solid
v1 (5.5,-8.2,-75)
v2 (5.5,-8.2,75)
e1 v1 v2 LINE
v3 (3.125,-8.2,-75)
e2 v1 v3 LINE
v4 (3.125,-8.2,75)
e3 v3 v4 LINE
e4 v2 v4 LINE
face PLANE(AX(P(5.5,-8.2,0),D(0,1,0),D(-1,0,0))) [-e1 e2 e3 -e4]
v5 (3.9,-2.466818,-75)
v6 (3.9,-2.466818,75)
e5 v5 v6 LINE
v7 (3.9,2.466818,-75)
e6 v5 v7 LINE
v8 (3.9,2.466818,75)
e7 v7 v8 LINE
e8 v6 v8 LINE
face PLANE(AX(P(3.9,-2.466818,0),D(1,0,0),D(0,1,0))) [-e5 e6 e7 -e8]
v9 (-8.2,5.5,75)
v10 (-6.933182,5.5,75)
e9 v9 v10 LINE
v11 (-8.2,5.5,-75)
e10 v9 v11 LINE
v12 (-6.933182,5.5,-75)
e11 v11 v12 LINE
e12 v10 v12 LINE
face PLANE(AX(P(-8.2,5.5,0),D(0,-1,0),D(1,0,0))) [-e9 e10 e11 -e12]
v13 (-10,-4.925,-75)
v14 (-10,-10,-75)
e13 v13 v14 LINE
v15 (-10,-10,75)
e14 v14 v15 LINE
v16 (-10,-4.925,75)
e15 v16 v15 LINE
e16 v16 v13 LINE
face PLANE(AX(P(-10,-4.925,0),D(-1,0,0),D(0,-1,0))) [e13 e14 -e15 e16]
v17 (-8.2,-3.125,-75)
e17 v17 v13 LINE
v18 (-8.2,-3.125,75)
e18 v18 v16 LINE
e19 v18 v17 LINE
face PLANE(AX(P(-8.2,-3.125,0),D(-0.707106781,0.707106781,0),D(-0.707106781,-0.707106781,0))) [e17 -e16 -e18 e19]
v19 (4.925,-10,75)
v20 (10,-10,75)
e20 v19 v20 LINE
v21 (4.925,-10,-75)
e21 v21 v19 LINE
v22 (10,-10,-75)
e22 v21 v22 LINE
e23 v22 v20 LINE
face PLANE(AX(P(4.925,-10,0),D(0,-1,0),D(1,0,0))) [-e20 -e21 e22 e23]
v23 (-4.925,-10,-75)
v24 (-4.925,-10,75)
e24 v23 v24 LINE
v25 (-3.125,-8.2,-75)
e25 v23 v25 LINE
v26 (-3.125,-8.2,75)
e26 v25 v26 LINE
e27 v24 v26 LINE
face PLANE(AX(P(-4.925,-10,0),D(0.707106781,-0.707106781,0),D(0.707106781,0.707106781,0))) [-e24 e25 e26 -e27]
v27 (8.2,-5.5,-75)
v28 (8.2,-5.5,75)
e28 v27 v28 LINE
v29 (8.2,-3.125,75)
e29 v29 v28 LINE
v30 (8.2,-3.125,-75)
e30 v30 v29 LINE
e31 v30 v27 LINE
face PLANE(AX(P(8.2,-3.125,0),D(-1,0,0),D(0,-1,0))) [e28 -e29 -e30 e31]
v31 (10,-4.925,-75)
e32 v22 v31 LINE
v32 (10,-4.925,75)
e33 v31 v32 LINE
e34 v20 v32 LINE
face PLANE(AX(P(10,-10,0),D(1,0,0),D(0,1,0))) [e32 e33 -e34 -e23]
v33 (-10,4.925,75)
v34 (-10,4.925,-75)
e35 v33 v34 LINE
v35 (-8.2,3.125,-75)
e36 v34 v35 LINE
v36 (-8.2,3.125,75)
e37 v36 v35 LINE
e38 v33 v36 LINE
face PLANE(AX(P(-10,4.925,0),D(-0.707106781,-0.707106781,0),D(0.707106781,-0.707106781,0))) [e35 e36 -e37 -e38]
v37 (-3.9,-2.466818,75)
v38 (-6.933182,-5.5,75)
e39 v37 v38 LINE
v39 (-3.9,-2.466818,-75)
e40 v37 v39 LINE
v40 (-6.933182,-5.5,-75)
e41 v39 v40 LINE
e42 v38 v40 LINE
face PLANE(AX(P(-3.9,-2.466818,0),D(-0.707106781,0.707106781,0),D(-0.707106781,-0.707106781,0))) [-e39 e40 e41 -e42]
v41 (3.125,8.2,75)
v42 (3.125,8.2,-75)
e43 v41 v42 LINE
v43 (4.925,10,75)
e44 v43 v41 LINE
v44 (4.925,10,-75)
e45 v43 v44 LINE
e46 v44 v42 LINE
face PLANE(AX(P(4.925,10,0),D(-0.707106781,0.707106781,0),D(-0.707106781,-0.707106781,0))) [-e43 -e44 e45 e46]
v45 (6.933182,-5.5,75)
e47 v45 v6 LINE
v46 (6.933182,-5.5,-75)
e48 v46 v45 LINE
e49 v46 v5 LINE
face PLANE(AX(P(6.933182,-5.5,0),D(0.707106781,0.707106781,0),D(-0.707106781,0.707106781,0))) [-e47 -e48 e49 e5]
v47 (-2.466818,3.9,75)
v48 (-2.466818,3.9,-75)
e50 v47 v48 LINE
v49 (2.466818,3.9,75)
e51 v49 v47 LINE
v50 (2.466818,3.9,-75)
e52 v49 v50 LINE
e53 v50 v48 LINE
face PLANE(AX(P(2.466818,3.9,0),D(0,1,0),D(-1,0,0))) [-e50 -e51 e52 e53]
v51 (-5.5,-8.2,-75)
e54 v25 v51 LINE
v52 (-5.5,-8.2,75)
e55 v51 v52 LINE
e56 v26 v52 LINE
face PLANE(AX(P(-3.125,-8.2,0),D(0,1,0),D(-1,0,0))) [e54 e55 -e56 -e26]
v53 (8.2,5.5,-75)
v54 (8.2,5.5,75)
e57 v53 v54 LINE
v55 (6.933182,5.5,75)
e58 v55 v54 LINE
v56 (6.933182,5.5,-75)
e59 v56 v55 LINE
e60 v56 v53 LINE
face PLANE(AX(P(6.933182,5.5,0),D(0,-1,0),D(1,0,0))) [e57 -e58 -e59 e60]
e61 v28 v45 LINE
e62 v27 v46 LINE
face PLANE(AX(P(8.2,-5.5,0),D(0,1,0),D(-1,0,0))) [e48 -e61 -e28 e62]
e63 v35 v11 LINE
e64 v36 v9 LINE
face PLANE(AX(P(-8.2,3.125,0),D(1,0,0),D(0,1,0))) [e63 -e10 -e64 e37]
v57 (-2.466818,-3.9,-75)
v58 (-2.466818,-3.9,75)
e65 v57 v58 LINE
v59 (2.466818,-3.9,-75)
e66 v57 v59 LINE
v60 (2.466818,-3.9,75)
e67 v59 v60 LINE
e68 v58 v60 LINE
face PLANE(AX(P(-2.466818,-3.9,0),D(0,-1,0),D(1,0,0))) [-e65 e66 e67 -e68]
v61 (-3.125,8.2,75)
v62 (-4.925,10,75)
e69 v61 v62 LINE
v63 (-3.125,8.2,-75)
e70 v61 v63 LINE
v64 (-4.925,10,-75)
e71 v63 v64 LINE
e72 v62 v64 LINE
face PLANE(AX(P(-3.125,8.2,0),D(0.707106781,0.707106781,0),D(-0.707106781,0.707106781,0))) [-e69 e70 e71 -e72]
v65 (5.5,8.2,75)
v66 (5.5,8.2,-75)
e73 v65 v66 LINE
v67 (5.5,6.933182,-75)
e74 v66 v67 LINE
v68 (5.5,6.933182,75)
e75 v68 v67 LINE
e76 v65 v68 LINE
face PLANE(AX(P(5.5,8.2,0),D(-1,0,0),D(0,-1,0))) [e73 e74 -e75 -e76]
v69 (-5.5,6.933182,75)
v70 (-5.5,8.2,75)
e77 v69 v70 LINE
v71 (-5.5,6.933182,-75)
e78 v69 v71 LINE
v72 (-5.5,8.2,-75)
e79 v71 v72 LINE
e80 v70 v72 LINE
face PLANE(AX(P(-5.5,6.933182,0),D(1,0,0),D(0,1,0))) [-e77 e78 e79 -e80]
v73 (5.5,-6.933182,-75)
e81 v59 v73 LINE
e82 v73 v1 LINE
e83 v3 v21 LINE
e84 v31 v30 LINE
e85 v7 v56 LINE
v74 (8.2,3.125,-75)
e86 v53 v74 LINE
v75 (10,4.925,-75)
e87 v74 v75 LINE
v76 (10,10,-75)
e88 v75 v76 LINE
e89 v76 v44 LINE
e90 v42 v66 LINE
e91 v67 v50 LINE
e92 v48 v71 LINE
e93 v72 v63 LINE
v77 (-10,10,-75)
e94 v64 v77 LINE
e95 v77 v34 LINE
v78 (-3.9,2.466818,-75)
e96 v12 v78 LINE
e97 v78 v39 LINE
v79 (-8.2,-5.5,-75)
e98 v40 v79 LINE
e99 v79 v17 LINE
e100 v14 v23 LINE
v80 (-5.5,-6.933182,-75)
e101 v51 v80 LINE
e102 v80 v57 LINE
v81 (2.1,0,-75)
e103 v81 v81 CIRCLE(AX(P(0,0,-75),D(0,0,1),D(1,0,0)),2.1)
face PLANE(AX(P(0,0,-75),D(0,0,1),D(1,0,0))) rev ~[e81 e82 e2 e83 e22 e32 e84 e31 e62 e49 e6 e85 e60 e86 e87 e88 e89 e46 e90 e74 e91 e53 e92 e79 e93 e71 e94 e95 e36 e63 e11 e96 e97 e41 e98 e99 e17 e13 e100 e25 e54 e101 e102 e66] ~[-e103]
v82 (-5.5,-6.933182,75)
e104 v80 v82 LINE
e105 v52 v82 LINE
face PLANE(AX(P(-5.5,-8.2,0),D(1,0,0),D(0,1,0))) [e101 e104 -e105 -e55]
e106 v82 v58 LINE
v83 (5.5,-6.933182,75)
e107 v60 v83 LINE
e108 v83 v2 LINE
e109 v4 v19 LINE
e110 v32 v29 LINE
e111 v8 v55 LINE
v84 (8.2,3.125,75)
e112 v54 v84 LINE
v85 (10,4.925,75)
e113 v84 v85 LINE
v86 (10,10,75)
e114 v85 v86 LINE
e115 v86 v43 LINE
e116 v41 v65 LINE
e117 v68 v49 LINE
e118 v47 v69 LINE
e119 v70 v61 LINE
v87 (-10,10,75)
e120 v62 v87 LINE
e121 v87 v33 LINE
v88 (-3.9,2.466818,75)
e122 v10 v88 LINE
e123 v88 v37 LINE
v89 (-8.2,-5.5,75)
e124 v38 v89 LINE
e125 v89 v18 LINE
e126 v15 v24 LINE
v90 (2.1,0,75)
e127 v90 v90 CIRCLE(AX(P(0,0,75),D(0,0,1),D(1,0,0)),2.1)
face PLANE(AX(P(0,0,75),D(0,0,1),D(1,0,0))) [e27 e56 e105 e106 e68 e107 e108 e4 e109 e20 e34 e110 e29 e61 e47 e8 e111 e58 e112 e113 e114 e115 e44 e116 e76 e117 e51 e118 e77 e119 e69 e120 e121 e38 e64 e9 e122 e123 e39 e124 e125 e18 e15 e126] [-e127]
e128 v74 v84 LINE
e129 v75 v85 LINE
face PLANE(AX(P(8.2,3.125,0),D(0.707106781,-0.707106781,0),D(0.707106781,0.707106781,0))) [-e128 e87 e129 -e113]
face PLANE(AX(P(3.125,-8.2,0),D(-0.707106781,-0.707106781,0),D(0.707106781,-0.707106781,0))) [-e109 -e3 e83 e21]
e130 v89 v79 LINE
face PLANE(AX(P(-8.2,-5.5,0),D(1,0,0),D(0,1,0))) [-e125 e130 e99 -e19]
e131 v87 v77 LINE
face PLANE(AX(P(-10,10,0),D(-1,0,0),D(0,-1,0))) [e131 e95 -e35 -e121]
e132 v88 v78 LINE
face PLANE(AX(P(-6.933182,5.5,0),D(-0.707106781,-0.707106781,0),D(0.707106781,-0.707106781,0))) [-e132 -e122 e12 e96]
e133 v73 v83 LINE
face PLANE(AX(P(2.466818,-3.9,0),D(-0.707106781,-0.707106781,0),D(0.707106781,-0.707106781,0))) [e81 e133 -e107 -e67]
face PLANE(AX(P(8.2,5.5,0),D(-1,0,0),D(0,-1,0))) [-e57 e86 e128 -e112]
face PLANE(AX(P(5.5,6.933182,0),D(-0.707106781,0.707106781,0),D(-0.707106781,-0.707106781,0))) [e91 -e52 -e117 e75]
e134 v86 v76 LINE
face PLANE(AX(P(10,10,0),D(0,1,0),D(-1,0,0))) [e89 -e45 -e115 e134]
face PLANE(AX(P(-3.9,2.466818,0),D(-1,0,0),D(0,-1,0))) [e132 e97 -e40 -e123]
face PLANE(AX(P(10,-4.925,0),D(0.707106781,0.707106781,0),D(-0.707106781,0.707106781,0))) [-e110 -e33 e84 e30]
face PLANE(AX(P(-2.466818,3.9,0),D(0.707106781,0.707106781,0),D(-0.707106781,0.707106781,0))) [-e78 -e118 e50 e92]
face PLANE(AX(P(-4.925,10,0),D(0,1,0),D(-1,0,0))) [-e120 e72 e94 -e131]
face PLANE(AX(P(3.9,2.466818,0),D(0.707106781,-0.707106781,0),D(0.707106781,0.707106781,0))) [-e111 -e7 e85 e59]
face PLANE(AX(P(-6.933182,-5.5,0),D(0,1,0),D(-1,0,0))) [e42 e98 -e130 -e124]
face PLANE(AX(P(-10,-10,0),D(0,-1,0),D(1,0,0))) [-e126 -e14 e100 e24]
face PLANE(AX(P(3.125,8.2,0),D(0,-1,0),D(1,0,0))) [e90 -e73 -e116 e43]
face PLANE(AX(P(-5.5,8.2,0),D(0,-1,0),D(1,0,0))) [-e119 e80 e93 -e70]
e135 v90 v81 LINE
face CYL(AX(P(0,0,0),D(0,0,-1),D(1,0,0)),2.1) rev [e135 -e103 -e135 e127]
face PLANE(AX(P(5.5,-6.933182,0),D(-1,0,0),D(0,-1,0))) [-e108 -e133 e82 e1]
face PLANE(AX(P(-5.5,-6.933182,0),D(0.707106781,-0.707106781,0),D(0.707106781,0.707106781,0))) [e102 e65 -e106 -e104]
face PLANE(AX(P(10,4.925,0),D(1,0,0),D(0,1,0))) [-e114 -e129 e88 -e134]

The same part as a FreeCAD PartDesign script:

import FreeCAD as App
import Part
import Sketcher
Q = App.Units.Quantity

doc = App.newDocument("Part")
params = doc.addObject("Spreadsheet::Sheet", "Params")
for row, (alias, value) in enumerate([
    ("sketch1_diameter", "4.2 mm"),
    ("pad1_length", "150 mm"),
], start=1):
    params.set(f"A{row}", alias)
    params.set(f"B{row}", "=" + value)
    params.setAlias(f"B{row}", alias)

body = doc.addObject("PartDesign::Body", "Body")

# Sketch on XY plane
sketch1 = body.newObject("Sketcher::SketchObject", "Sketch")
sketch1.AttachmentSupport = (doc.getObject("XY_Plane"), [""])
sketch1.MapMode = "FlatFace"
sketch1.addGeometry(Part.LineSegment(App.Vector(-10, -4.925, 0), App.Vector(-10, -10, 0)), False)
sketch1.addGeometry(Part.LineSegment(App.Vector(-10, -10, 0), App.Vector(-4.925, -10, 0)), False)
sketch1.addGeometry(Part.LineSegment(App.Vector(-4.925, -10, 0), App.Vector(-3.125, -8.2, 0)), False)
sketch1.addGeometry(Part.LineSegment(App.Vector(-3.125, -8.2, 0), App.Vector(-5.5, -8.2, 0)), False)
sketch1.addGeometry(Part.LineSegment(App.Vector(-5.5, -8.2, 0), App.Vector(-5.5, -6.933182, 0)), False)
sketch1.addGeometry(Part.LineSegment(App.Vector(-5.5, -6.933182, 0), App.Vector(-2.466818, -3.9, 0)), False)
sketch1.addGeometry(Part.LineSegment(App.Vector(-2.466818, -3.9, 0), App.Vector(2.466818, -3.9, 0)), False)
sketch1.addGeometry(Part.LineSegment(App.Vector(2.466818, -3.9, 0), App.Vector(5.5, -6.933182, 0)), False)
sketch1.addGeometry(Part.LineSegment(App.Vector(5.5, -6.933182, 0), App.Vector(5.5, -8.2, 0)), False)
sketch1.addGeometry(Part.LineSegment(App.Vector(5.5, -8.2, 0), App.Vector(3.125, -8.2, 0)), False)
sketch1.addGeometry(Part.LineSegment(App.Vector(3.125, -8.2, 0), App.Vector(4.925, -10, 0)), False)
sketch1.addGeometry(Part.LineSegment(App.Vector(4.925, -10, 0), App.Vector(10, -10, 0)), False)
sketch1.addGeometry(Part.LineSegment(App.Vector(10, -10, 0), App.Vector(10, -4.925, 0)), False)
sketch1.addGeometry(Part.LineSegment(App.Vector(10, -4.925, 0), App.Vector(8.2, -3.125, 0)), False)
sketch1.addGeometry(Part.LineSegment(App.Vector(8.2, -3.125, 0), App.Vector(8.2, -5.5, 0)), False)
sketch1.addGeometry(Part.LineSegment(App.Vector(8.2, -5.5, 0), App.Vector(6.933182, -5.5, 0)), False)
sketch1.addGeometry(Part.LineSegment(App.Vector(6.933182, -5.5, 0), App.Vector(3.9, -2.466818, 0)), False)
sketch1.addGeometry(Part.LineSegment(App.Vector(3.9, -2.466818, 0), App.Vector(3.9, 2.466818, 0)), False)
sketch1.addGeometry(Part.LineSegment(App.Vector(3.9, 2.466818, 0), App.Vector(6.933182, 5.5, 0)), False)
sketch1.addGeometry(Part.LineSegment(App.Vector(6.933182, 5.5, 0), App.Vector(8.2, 5.5, 0)), False)
sketch1.addGeometry(Part.LineSegment(App.Vector(8.2, 5.5, 0), App.Vector(8.2, 3.125, 0)), False)
sketch1.addGeometry(Part.LineSegment(App.Vector(8.2, 3.125, 0), App.Vector(10, 4.925, 0)), False)
sketch1.addGeometry(Part.LineSegment(App.Vector(10, 4.925, 0), App.Vector(10, 10, 0)), False)
sketch1.addGeometry(Part.LineSegment(App.Vector(10, 10, 0), App.Vector(4.925, 10, 0)), False)
sketch1.addGeometry(Part.LineSegment(App.Vector(4.925, 10, 0), App.Vector(3.125, 8.2, 0)), False)
sketch1.addGeometry(Part.LineSegment(App.Vector(3.125, 8.2, 0), App.Vector(5.5, 8.2, 0)), False)
sketch1.addGeometry(Part.LineSegment(App.Vector(5.5, 8.2, 0), App.Vector(5.5, 6.933182, 0)), False)
sketch1.addGeometry(Part.LineSegment(App.Vector(5.5, 6.933182, 0), App.Vector(2.466818, 3.9, 0)), False)
sketch1.addGeometry(Part.LineSegment(App.Vector(2.466818, 3.9, 0), App.Vector(-2.466818, 3.9, 0)), False)
sketch1.addGeometry(Part.LineSegment(App.Vector(-2.466818, 3.9, 0), App.Vector(-5.5, 6.933182, 0)), False)
sketch1.addGeometry(Part.LineSegment(App.Vector(-5.5, 6.933182, 0), App.Vector(-5.5, 8.2, 0)), False)
sketch1.addGeometry(Part.LineSegment(App.Vector(-5.5, 8.2, 0), App.Vector(-3.125, 8.2, 0)), False)
sketch1.addGeometry(Part.LineSegment(App.Vector(-3.125, 8.2, 0), App.Vector(-4.925, 10, 0)), False)
sketch1.addGeometry(Part.LineSegment(App.Vector(-4.925, 10, 0), App.Vector(-10, 10, 0)), False)
sketch1.addGeometry(Part.LineSegment(App.Vector(-10, 10, 0), App.Vector(-10, 4.925, 0)), False)
sketch1.addGeometry(Part.LineSegment(App.Vector(-10, 4.925, 0), App.Vector(-8.2, 3.125, 0)), False)
sketch1.addGeometry(Part.LineSegment(App.Vector(-8.2, 3.125, 0), App.Vector(-8.2, 5.5, 0)), False)
sketch1.addGeometry(Part.LineSegment(App.Vector(-8.2, 5.5, 0), App.Vector(-6.933182, 5.5, 0)), False)
sketch1.addGeometry(Part.LineSegment(App.Vector(-6.933182, 5.5, 0), App.Vector(-3.9, 2.466818, 0)), False)
sketch1.addGeometry(Part.LineSegment(App.Vector(-3.9, 2.466818, 0), App.Vector(-3.9, -2.466818, 0)), False)
sketch1.addGeometry(Part.LineSegment(App.Vector(-3.9, -2.466818, 0), App.Vector(-6.933182, -5.5, 0)), False)
sketch1.addGeometry(Part.LineSegment(App.Vector(-6.933182, -5.5, 0), App.Vector(-8.2, -5.5, 0)), False)
sketch1.addGeometry(Part.LineSegment(App.Vector(-8.2, -5.5, 0), App.Vector(-8.2, -3.125, 0)), False)
sketch1.addGeometry(Part.LineSegment(App.Vector(-8.2, -3.125, 0), App.Vector(-10, -4.925, 0)), False)
sketch1.addGeometry(Part.Circle(App.Vector(0, 0, 0), App.Vector(0, 0, 1), 2.1), False)
sketch1.addConstraint(Sketcher.Constraint("Coincident", 0, 2, 1, 1))
sketch1.addConstraint(Sketcher.Constraint("Coincident", 1, 2, 2, 1))
sketch1.addConstraint(Sketcher.Constraint("Coincident", 2, 2, 3, 1))
sketch1.addConstraint(Sketcher.Constraint("Coincident", 3, 2, 4, 1))
sketch1.addConstraint(Sketcher.Constraint("Coincident", 4, 2, 5, 1))
sketch1.addConstraint(Sketcher.Constraint("Coincident", 5, 2, 6, 1))
sketch1.addConstraint(Sketcher.Constraint("Coincident", 6, 2, 7, 1))
sketch1.addConstraint(Sketcher.Constraint("Coincident", 7, 2, 8, 1))
sketch1.addConstraint(Sketcher.Constraint("Coincident", 8, 2, 9, 1))
sketch1.addConstraint(Sketcher.Constraint("Coincident", 9, 2, 10, 1))
sketch1.addConstraint(Sketcher.Constraint("Coincident", 10, 2, 11, 1))
sketch1.addConstraint(Sketcher.Constraint("Coincident", 11, 2, 12, 1))
sketch1.addConstraint(Sketcher.Constraint("Coincident", 12, 2, 13, 1))
sketch1.addConstraint(Sketcher.Constraint("Coincident", 13, 2, 14, 1))
sketch1.addConstraint(Sketcher.Constraint("Coincident", 14, 2, 15, 1))
sketch1.addConstraint(Sketcher.Constraint("Coincident", 15, 2, 16, 1))
sketch1.addConstraint(Sketcher.Constraint("Coincident", 16, 2, 17, 1))
sketch1.addConstraint(Sketcher.Constraint("Coincident", 17, 2, 18, 1))
sketch1.addConstraint(Sketcher.Constraint("Coincident", 18, 2, 19, 1))
sketch1.addConstraint(Sketcher.Constraint("Coincident", 19, 2, 20, 1))
sketch1.addConstraint(Sketcher.Constraint("Coincident", 20, 2, 21, 1))
sketch1.addConstraint(Sketcher.Constraint("Coincident", 21, 2, 22, 1))
sketch1.addConstraint(Sketcher.Constraint("Coincident", 22, 2, 23, 1))
sketch1.addConstraint(Sketcher.Constraint("Coincident", 23, 2, 24, 1))
sketch1.addConstraint(Sketcher.Constraint("Coincident", 24, 2, 25, 1))
sketch1.addConstraint(Sketcher.Constraint("Coincident", 25, 2, 26, 1))
sketch1.addConstraint(Sketcher.Constraint("Coincident", 26, 2, 27, 1))
sketch1.addConstraint(Sketcher.Constraint("Coincident", 27, 2, 28, 1))
sketch1.addConstraint(Sketcher.Constraint("Coincident", 28, 2, 29, 1))
sketch1.addConstraint(Sketcher.Constraint("Coincident", 29, 2, 30, 1))
sketch1.addConstraint(Sketcher.Constraint("Coincident", 30, 2, 31, 1))
sketch1.addConstraint(Sketcher.Constraint("Coincident", 31, 2, 32, 1))
sketch1.addConstraint(Sketcher.Constraint("Coincident", 32, 2, 33, 1))
sketch1.addConstraint(Sketcher.Constraint("Coincident", 33, 2, 34, 1))
sketch1.addConstraint(Sketcher.Constraint("Coincident", 34, 2, 35, 1))
sketch1.addConstraint(Sketcher.Constraint("Coincident", 35, 2, 36, 1))
sketch1.addConstraint(Sketcher.Constraint("Coincident", 36, 2, 37, 1))
sketch1.addConstraint(Sketcher.Constraint("Coincident", 37, 2, 38, 1))
sketch1.addConstraint(Sketcher.Constraint("Coincident", 38, 2, 39, 1))
sketch1.addConstraint(Sketcher.Constraint("Coincident", 39, 2, 40, 1))
sketch1.addConstraint(Sketcher.Constraint("Coincident", 40, 2, 41, 1))
sketch1.addConstraint(Sketcher.Constraint("Coincident", 41, 2, 42, 1))
sketch1.addConstraint(Sketcher.Constraint("Coincident", 42, 2, 43, 1))
sketch1.addConstraint(Sketcher.Constraint("Coincident", 43, 2, 0, 1))
sketch1.addConstraint(Sketcher.Constraint("Vertical", 0))
sketch1.addConstraint(Sketcher.Constraint("Horizontal", 1))
sketch1.addConstraint(Sketcher.Constraint("Horizontal", 3))
sketch1.addConstraint(Sketcher.Constraint("Vertical", 4))
sketch1.addConstraint(Sketcher.Constraint("Horizontal", 6))
sketch1.addConstraint(Sketcher.Constraint("Vertical", 8))
sketch1.addConstraint(Sketcher.Constraint("Horizontal", 9))
sketch1.addConstraint(Sketcher.Constraint("Horizontal", 11))
sketch1.addConstraint(Sketcher.Constraint("Vertical", 12))
sketch1.addConstraint(Sketcher.Constraint("Vertical", 14))
sketch1.addConstraint(Sketcher.Constraint("Horizontal", 15))
sketch1.addConstraint(Sketcher.Constraint("Vertical", 17))
sketch1.addConstraint(Sketcher.Constraint("Horizontal", 19))
sketch1.addConstraint(Sketcher.Constraint("Vertical", 20))
sketch1.addConstraint(Sketcher.Constraint("Vertical", 22))
sketch1.addConstraint(Sketcher.Constraint("Horizontal", 23))
sketch1.addConstraint(Sketcher.Constraint("Horizontal", 25))
sketch1.addConstraint(Sketcher.Constraint("Vertical", 26))
sketch1.addConstraint(Sketcher.Constraint("Horizontal", 28))
sketch1.addConstraint(Sketcher.Constraint("Vertical", 30))
sketch1.addConstraint(Sketcher.Constraint("Horizontal", 31))
sketch1.addConstraint(Sketcher.Constraint("Horizontal", 33))
sketch1.addConstraint(Sketcher.Constraint("Vertical", 34))
sketch1.addConstraint(Sketcher.Constraint("Vertical", 36))
sketch1.addConstraint(Sketcher.Constraint("Horizontal", 37))
sketch1.addConstraint(Sketcher.Constraint("Vertical", 39))
sketch1.addConstraint(Sketcher.Constraint("Horizontal", 41))
sketch1.addConstraint(Sketcher.Constraint("Vertical", 42))
sketch1.addConstraint(Sketcher.Constraint("Coincident", 44, 3, -1, 1))
sketch1.addConstraint(Sketcher.Constraint("Symmetric", 0, 2, 22, 2, -1, 1))
sketch1.addConstraint(Sketcher.Constraint("Symmetric", 2, 2, 24, 2, -1, 1))
sketch1.addConstraint(Sketcher.Constraint("Symmetric", 4, 2, 26, 2, -1, 1))
sketch1.addConstraint(Sketcher.Constraint("Symmetric", 5, 2, 27, 2, -1, 1))
sketch1.addConstraint(Sketcher.Constraint("Symmetric", 7, 2, 29, 2, -1, 1))
sketch1.addConstraint(Sketcher.Constraint("Symmetric", 9, 2, 31, 2, -1, 1))
sketch1.addConstraint(Sketcher.Constraint("Symmetric", 10, 2, 32, 2, -1, 1))
sketch1.addConstraint(Sketcher.Constraint("Symmetric", 12, 2, 34, 2, -1, 1))
sketch1.addConstraint(Sketcher.Constraint("Symmetric", 13, 2, 35, 2, -1, 1))
sketch1.addConstraint(Sketcher.Constraint("Symmetric", 15, 2, 37, 2, -1, 1))
sketch1.addConstraint(Sketcher.Constraint("Symmetric", 16, 2, 38, 2, -1, 1))
sketch1.addConstraint(Sketcher.Constraint("Symmetric", 18, 2, 40, 2, -1, 1))
sketch1.addConstraint(Sketcher.Constraint("Symmetric", 20, 2, 42, 2, -1, 1))
sketch1.addConstraint(Sketcher.Constraint("Symmetric", 4, 2, 7, 2, -2))
sketch1.addConstraint(Sketcher.Constraint("Symmetric", 2, 2, 9, 2, -2))
sketch1.addConstraint(Sketcher.Constraint("Symmetric", 1, 2, 10, 2, -2))
sketch1.addConstraint(Sketcher.Constraint("Symmetric", 21, 2, 34, 2, -2))
sketch1.addConstraint(Sketcher.Constraint("Symmetric", 20, 2, 35, 2, -2))
sketch1.addConstraint(Sketcher.Constraint("Symmetric", 18, 2, 37, 2, -2))
sketch1.addConstraint(Sketcher.Constraint("Parallel", 2, 5))
sketch1.addConstraint(Sketcher.Constraint("Perpendicular", 5, 7))
sketch1.addConstraint(Sketcher.Constraint("Parallel", 7, 10))
sketch1.addConstraint(Sketcher.Constraint("Parallel", 10, 13))
sketch1.addConstraint(Sketcher.Constraint("Parallel", 13, 16))
sketch1.addConstraint(Sketcher.Constraint("Perpendicular", 16, 18))
sketch1.addConstraint(Sketcher.Constraint("Parallel", 21, 24))
sketch1.addConstraint(Sketcher.Constraint("Perpendicular", 27, 29))
sketch1.addConstraint(Sketcher.Constraint("Perpendicular", 38, 40))
sketch1.addConstraint(Sketcher.Constraint("Parallel", 40, 43))
sketch1.addConstraint(Sketcher.Constraint("Equal", 33, 0))
sketch1.addConstraint(Sketcher.Constraint("Equal", 41, 4))
sketch1.addConstraint(Sketcher.Constraint("Equal", 31, 14))
sketch1.addConstraint(Sketcher.Constraint("Equal", 28, 17))
sketch1.addConstraint(Sketcher.Constraint("Equal", 10, 13))
sketch1.addConstraint(Sketcher.Constraint("Equal", 7, 16))
sketch1.addConstraint(Sketcher.Constraint("Diameter", 44, Q("4.2 mm")))
sketch1.addConstraint(Sketcher.Constraint("DistanceX", 0, 2, -1, 1, Q("10 mm")))
sketch1.addConstraint(Sketcher.Constraint("DistanceY", 2, 2, -1, 1, Q("8.2 mm")))
sketch1.addConstraint(Sketcher.Constraint("DistanceX", 3, 2, -1, 1, Q("5.5 mm")))
sketch1.addConstraint(Sketcher.Constraint("DistanceY", 5, 2, -1, 1, Q("3.9 mm")))
sketch1.addConstraint(Sketcher.Constraint("DistanceX", 1, 1, 1, 2, Q("5.075 mm")))
sketch1.addConstraint(Sketcher.Constraint("DistanceX", 15, 2, 15, 1, Q("1.266818 mm")))
sketch1.setExpression("Constraints[108]", "Params.sketch1_diameter")
pad1 = body.newObject("PartDesign::Pad", "Pad")
pad1.Profile = sketch1
pad1.setExpression("Length", "Params.pad1_length")
pad1.Midplane = True

doc.recompute()
